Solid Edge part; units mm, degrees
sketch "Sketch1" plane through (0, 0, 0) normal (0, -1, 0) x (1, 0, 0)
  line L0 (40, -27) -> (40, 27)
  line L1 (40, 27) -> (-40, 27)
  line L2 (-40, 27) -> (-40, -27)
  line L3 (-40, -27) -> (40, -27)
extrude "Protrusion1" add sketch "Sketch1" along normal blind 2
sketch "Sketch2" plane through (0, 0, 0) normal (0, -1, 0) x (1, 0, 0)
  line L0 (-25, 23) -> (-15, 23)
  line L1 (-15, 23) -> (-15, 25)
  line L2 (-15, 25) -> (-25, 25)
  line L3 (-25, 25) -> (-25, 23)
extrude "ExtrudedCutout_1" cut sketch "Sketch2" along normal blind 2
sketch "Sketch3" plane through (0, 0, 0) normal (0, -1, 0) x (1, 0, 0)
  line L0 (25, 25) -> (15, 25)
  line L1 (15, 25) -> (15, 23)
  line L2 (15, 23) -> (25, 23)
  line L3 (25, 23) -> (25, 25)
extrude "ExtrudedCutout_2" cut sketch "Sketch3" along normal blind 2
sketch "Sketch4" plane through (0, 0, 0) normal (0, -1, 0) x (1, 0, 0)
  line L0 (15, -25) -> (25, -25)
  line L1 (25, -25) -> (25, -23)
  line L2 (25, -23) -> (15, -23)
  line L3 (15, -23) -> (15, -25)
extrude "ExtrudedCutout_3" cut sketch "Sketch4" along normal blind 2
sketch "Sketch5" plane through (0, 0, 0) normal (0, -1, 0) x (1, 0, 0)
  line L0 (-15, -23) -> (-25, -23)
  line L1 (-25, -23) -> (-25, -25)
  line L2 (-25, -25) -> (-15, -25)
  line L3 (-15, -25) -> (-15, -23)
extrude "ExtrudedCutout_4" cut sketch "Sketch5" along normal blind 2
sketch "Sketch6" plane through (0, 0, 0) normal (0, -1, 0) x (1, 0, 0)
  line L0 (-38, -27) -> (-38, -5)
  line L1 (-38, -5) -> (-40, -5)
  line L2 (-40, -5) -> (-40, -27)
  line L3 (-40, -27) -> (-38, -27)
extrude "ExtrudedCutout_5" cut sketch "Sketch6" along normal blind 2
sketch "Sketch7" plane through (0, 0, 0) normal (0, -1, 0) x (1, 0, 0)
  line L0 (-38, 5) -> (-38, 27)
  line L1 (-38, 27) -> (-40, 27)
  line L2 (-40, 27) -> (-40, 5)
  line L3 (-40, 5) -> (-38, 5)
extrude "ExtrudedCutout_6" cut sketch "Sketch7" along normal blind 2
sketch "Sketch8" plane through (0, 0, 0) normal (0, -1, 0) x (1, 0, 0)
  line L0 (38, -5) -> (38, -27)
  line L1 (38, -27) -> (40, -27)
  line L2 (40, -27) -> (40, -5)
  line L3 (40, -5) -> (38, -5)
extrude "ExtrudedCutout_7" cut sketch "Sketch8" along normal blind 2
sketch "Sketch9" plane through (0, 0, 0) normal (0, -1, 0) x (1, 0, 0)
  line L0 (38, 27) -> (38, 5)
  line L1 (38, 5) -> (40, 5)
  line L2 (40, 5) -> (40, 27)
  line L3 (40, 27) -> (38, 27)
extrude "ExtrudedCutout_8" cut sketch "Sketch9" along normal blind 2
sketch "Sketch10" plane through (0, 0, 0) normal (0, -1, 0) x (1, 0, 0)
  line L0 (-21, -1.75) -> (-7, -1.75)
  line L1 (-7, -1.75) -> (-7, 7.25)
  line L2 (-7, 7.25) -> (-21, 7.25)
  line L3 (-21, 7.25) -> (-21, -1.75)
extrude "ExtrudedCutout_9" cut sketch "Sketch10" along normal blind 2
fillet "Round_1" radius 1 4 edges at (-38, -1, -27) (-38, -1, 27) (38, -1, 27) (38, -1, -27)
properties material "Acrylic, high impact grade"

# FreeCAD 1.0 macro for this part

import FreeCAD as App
import Part
import Sketcher
Q = App.Units.Quantity


def edges_at(feature, points):
    """Names of the edges that pass closest to the given points."""
    edges = feature.Shape.Edges
    near = lambda p: min(range(len(edges)), key=lambda i: edges[i].distToShape(Part.Vertex(*p))[0])
    return sorted({f"Edge{near(p) + 1}" for p in points})

doc = App.newDocument("Part")
body = doc.addObject("PartDesign::Body", "Body")

# Sketch on XZ plane
sketch1 = body.newObject("Sketcher::SketchObject", "Sketch")
sketch1.AttachmentSupport = (doc.getObject("XZ_Plane"), [""])
sketch1.MapMode = "FlatFace"
sketch1.addGeometry(Part.LineSegment(App.Vector(-40, -27, 0), App.Vector(40, -27, 0)), False)
sketch1.addGeometry(Part.LineSegment(App.Vector(40, -27, 0), App.Vector(40, 27, 0)), False)
sketch1.addGeometry(Part.LineSegment(App.Vector(40, 27, 0), App.Vector(-40, 27, 0)), False)
sketch1.addGeometry(Part.LineSegment(App.Vector(-40, 27, 0), App.Vector(-40, -27, 0)), False)
sketch1.addConstraint(Sketcher.Constraint("Coincident", 0, 2, 1, 1))
sketch1.addConstraint(Sketcher.Constraint("Coincident", 1, 2, 2, 1))
sketch1.addConstraint(Sketcher.Constraint("Coincident", 2, 2, 3, 1))
sketch1.addConstraint(Sketcher.Constraint("Coincident", 3, 2, 0, 1))
sketch1.addConstraint(Sketcher.Constraint("Horizontal", 0))
sketch1.addConstraint(Sketcher.Constraint("Vertical", 1))
sketch1.addConstraint(Sketcher.Constraint("Horizontal", 2))
sketch1.addConstraint(Sketcher.Constraint("Vertical", 3))
sketch1.addConstraint(Sketcher.Constraint("Symmetric", 0, 2, 2, 2, -1, 1))
sketch1.addConstraint(Sketcher.Constraint("DistanceX", 0, 1, 0, 2, Q("80 mm")))
sketch1.addConstraint(Sketcher.Constraint("DistanceY", 1, 1, 1, 2, Q("54 mm")))
pad1 = body.newObject("PartDesign::Pad", "Pad")
pad1.Profile = sketch1
pad1.Length = 2

# Sketch on XZ plane
sketch2 = body.newObject("Sketcher::SketchObject", "Sketch001")
sketch2.AttachmentSupport = (doc.getObject("XZ_Plane"), [""])
sketch2.MapMode = "FlatFace"
sketch2.addGeometry(Part.LineSegment(App.Vector(-25, 25, 0), App.Vector(-25, 23, 0)), False)
sketch2.addGeometry(Part.LineSegment(App.Vector(-25, 23, 0), App.Vector(-15, 23, 0)), False)
sketch2.addGeometry(Part.LineSegment(App.Vector(-15, 23, 0), App.Vector(-15, 25, 0)), False)
sketch2.addGeometry(Part.LineSegment(App.Vector(-15, 25, 0), App.Vector(-25, 25, 0)), False)
sketch2.addConstraint(Sketcher.Constraint("Coincident", 0, 2, 1, 1))
sketch2.addConstraint(Sketcher.Constraint("Coincident", 1, 2, 2, 1))
sketch2.addConstraint(Sketcher.Constraint("Coincident", 2, 2, 3, 1))
sketch2.addConstraint(Sketcher.Constraint("Coincident", 3, 2, 0, 1))
sketch2.addConstraint(Sketcher.Constraint("Vertical", 0))
sketch2.addConstraint(Sketcher.Constraint("Horizontal", 1))
sketch2.addConstraint(Sketcher.Constraint("Vertical", 2))
sketch2.addConstraint(Sketcher.Constraint("Horizontal", 3))
sketch2.addConstraint(Sketcher.Constraint("DistanceX", 1, 1, 1, 2, Q("10 mm")))
sketch2.addConstraint(Sketcher.Constraint("DistanceY", 0, 2, 0, 1, Q("2 mm")))
sketch2.addConstraint(Sketcher.Constraint("DistanceX", 0, 2, -1, 1, Q("25 mm")))
sketch2.addConstraint(Sketcher.Constraint("DistanceY", -1, 1, 0, 2, Q("23 mm")))
pocket1 = body.newObject("PartDesign::Pocket", "Pocket")
pocket1.Profile = sketch2
pocket1.Length = 2
pocket1.Reversed = True

# Sketch on XZ plane
sketch3 = body.newObject("Sketcher::SketchObject", "Sketch002")
sketch3.AttachmentSupport = (doc.getObject("XZ_Plane"), [""])
sketch3.MapMode = "FlatFace"
sketch3.addGeometry(Part.LineSegment(App.Vector(25, 23, 0), App.Vector(25, 25, 0)), False)
sketch3.addGeometry(Part.LineSegment(App.Vector(25, 25, 0), App.Vector(15, 25, 0)), False)
sketch3.addGeometry(Part.LineSegment(App.Vector(15, 25, 0), App.Vector(15, 23, 0)), False)
sketch3.addGeometry(Part.LineSegment(App.Vector(15, 23, 0), App.Vector(25, 23, 0)), False)
sketch3.addConstraint(Sketcher.Constraint("Coincident", 0, 2, 1, 1))
sketch3.addConstraint(Sketcher.Constraint("Coincident", 1, 2, 2, 1))
sketch3.addConstraint(Sketcher.Constraint("Coincident", 2, 2, 3, 1))
sketch3.addConstraint(Sketcher.Constraint("Coincident", 3, 2, 0, 1))
sketch3.addConstraint(Sketcher.Constraint("Vertical", 0))
sketch3.addConstraint(Sketcher.Constraint("Horizontal", 1))
sketch3.addConstraint(Sketcher.Constraint("Vertical", 2))
sketch3.addConstraint(Sketcher.Constraint("Horizontal", 3))
sketch3.addConstraint(Sketcher.Constraint("DistanceX", 1, 2, 1, 1, Q("10 mm")))
sketch3.addConstraint(Sketcher.Constraint("DistanceY", 0, 1, 0, 2, Q("2 mm")))
sketch3.addConstraint(Sketcher.Constraint("DistanceX", -1, 1, 0, 2, Q("25 mm")))
sketch3.addConstraint(Sketcher.Constraint("DistanceY", -1, 1, 0, 2, Q("25 mm")))
pocket2 = body.newObject("PartDesign::Pocket", "Pocket001")
pocket2.Profile = sketch3
pocket2.Length = 2
pocket2.Reversed = True

# Sketch on XZ plane
sketch4 = body.newObject("Sketcher::SketchObject", "Sketch003")
sketch4.AttachmentSupport = (doc.getObject("XZ_Plane"), [""])
sketch4.MapMode = "FlatFace"
sketch4.addGeometry(Part.LineSegment(App.Vector(15, -23, 0), App.Vector(15, -25, 0)), False)
sketch4.addGeometry(Part.LineSegment(App.Vector(15, -25, 0), App.Vector(25, -25, 0)), False)
sketch4.addGeometry(Part.LineSegment(App.Vector(25, -25, 0), App.Vector(25, -23, 0)), False)
sketch4.addGeometry(Part.LineSegment(App.Vector(25, -23, 0), App.Vector(15, -23, 0)), False)
sketch4.addConstraint(Sketcher.Constraint("Coincident", 0, 2, 1, 1))
sketch4.addConstraint(Sketcher.Constraint("Coincident", 1, 2, 2, 1))
sketch4.addConstraint(Sketcher.Constraint("Coincident", 2, 2, 3, 1))
sketch4.addConstraint(Sketcher.Constraint("Coincident", 3, 2, 0, 1))
sketch4.addConstraint(Sketcher.Constraint("Vertical", 0))
sketch4.addConstraint(Sketcher.Constraint("Horizontal", 1))
sketch4.addConstraint(Sketcher.Constraint("Vertical", 2))
sketch4.addConstraint(Sketcher.Constraint("Horizontal", 3))
sketch4.addConstraint(Sketcher.Constraint("DistanceX", 1, 1, 1, 2, Q("10 mm")))
sketch4.addConstraint(Sketcher.Constraint("DistanceY", 0, 2, 0, 1, Q("2 mm")))
sketch4.addConstraint(Sketcher.Constraint("DistanceX", -1, 1, 0, 2, Q("15 mm")))
sketch4.addConstraint(Sketcher.Constraint("DistanceY", 0, 2, -1, 1, Q("25 mm")))
pocket3 = body.newObject("PartDesign::Pocket", "Pocket002")
pocket3.Profile = sketch4
pocket3.Length = 2
pocket3.Reversed = True

# Sketch on XZ plane
sketch5 = body.newObject("Sketcher::SketchObject", "Sketch004")
sketch5.AttachmentSupport = (doc.getObject("XZ_Plane"), [""])
sketch5.MapMode = "FlatFace"
sketch5.addGeometry(Part.LineSegment(App.Vector(-15, -25, 0), App.Vector(-15, -23, 0)), False)
sketch5.addGeometry(Part.LineSegment(App.Vector(-15, -23, 0), App.Vector(-25, -23, 0)), False)
sketch5.addGeometry(Part.LineSegment(App.Vector(-25, -23, 0), App.Vector(-25, -25, 0)), False)
sketch5.addGeometry(Part.LineSegment(App.Vector(-25, -25, 0), App.Vector(-15, -25, 0)), False)
sketch5.addConstraint(Sketcher.Constraint("Coincident", 0, 2, 1, 1))
sketch5.addConstraint(Sketcher.Constraint("Coincident", 1, 2, 2, 1))
sketch5.addConstraint(Sketcher.Constraint("Coincident", 2, 2, 3, 1))
sketch5.addConstraint(Sketcher.Constraint("Coincident", 3, 2, 0, 1))
sketch5.addConstraint(Sketcher.Constraint("Vertical", 0))
sketch5.addConstraint(Sketcher.Constraint("Horizontal", 1))
sketch5.addConstraint(Sketcher.Constraint("Vertical", 2))
sketch5.addConstraint(Sketcher.Constraint("Horizontal", 3))
sketch5.addConstraint(Sketcher.Constraint("DistanceX", 1, 2, 1, 1, Q("10 mm")))
sketch5.addConstraint(Sketcher.Constraint("DistanceY", 0, 1, 0, 2, Q("2 mm")))
sketch5.addConstraint(Sketcher.Constraint("DistanceX", 0, 2, -1, 1, Q("15 mm")))
sketch5.addConstraint(Sketcher.Constraint("DistanceY", 0, 2, -1, 1, Q("23 mm")))
pocket4 = body.newObject("PartDesign::Pocket", "Pocket003")
pocket4.Profile = sketch5
pocket4.Length = 2
pocket4.Reversed = True

# Sketch on XZ plane
sketch6 = body.newObject("Sketcher::SketchObject", "Sketch005")
sketch6.AttachmentSupport = (doc.getObject("XZ_Plane"), [""])
sketch6.MapMode = "FlatFace"
sketch6.addGeometry(Part.LineSegment(App.Vector(-40, -27, 0), App.Vector(-38, -27, 0)), False)
sketch6.addGeometry(Part.LineSegment(App.Vector(-38, -27, 0), App.Vector(-38, -5, 0)), False)
sketch6.addGeometry(Part.LineSegment(App.Vector(-38, -5, 0), App.Vector(-40, -5, 0)), False)
sketch6.addGeometry(Part.LineSegment(App.Vector(-40, -5, 0), App.Vector(-40, -27, 0)), False)
sketch6.addConstraint(Sketcher.Constraint("Coincident", 0, 2, 1, 1))
sketch6.addConstraint(Sketcher.Constraint("Coincident", 1, 2, 2, 1))
sketch6.addConstraint(Sketcher.Constraint("Coincident", 2, 2, 3, 1))
sketch6.addConstraint(Sketcher.Constraint("Coincident", 3, 2, 0, 1))
sketch6.addConstraint(Sketcher.Constraint("Horizontal", 0))
sketch6.addConstraint(Sketcher.Constraint("Vertical", 1))
sketch6.addConstraint(Sketcher.Constraint("Horizontal", 2))
sketch6.addConstraint(Sketcher.Constraint("Vertical", 3))
sketch6.addConstraint(Sketcher.Constraint("DistanceX", 0, 1, 0, 2, Q("2 mm")))
sketch6.addConstraint(Sketcher.Constraint("DistanceY", 1, 1, 1, 2, Q("22 mm")))
sketch6.addConstraint(Sketcher.Constraint("DistanceX", 0, 2, -1, 1, Q("38 mm")))
sketch6.addConstraint(Sketcher.Constraint("DistanceY", 0, 2, -1, 1, Q("27 mm")))
pocket5 = body.newObject("PartDesign::Pocket", "Pocket004")
pocket5.Profile = sketch6
pocket5.Length = 2
pocket5.Reversed = True

# Sketch on XZ plane
sketch7 = body.newObject("Sketcher::SketchObject", "Sketch006")
sketch7.AttachmentSupport = (doc.getObject("XZ_Plane"), [""])
sketch7.MapMode = "FlatFace"
sketch7.addGeometry(Part.LineSegment(App.Vector(-40, 5, 0), App.Vector(-38, 5, 0)), False)
sketch7.addGeometry(Part.LineSegment(App.Vector(-38, 5, 0), App.Vector(-38, 27, 0)), False)
sketch7.addGeometry(Part.LineSegment(App.Vector(-38, 27, 0), App.Vector(-40, 27, 0)), False)
sketch7.addGeometry(Part.LineSegment(App.Vector(-40, 27, 0), App.Vector(-40, 5, 0)), False)
sketch7.addConstraint(Sketcher.Constraint("Coincident", 0, 2, 1, 1))
sketch7.addConstraint(Sketcher.Constraint("Coincident", 1, 2, 2, 1))
sketch7.addConstraint(Sketcher.Constraint("Coincident", 2, 2, 3, 1))
sketch7.addConstraint(Sketcher.Constraint("Coincident", 3, 2, 0, 1))
sketch7.addConstraint(Sketcher.Constraint("Horizontal", 0))
sketch7.addConstraint(Sketcher.Constraint("Vertical", 1))
sketch7.addConstraint(Sketcher.Constraint("Horizontal", 2))
sketch7.addConstraint(Sketcher.Constraint("Vertical", 3))
sketch7.addConstraint(Sketcher.Constraint("DistanceX", 0, 1, 0, 2, Q("2 mm")))
sketch7.addConstraint(Sketcher.Constraint("DistanceY", 1, 1, 1, 2, Q("22 mm")))
sketch7.addConstraint(Sketcher.Constraint("DistanceX", 0, 2, -1, 1, Q("38 mm")))
sketch7.addConstraint(Sketcher.Constraint("DistanceY", -1, 1, 0, 2, Q("5 mm")))
pocket6 = body.newObject("PartDesign::Pocket", "Pocket005")
pocket6.Profile = sketch7
pocket6.Length = 2
pocket6.Reversed = True

# Sketch on XZ plane
sketch8 = body.newObject("Sketcher::SketchObject", "Sketch007")
sketch8.AttachmentSupport = (doc.getObject("XZ_Plane"), [""])
sketch8.MapMode = "FlatFace"
sketch8.addGeometry(Part.LineSegment(App.Vector(40, -5, 0), App.Vector(38, -5, 0)), False)
sketch8.addGeometry(Part.LineSegment(App.Vector(38, -5, 0), App.Vector(38, -27, 0)), False)
sketch8.addGeometry(Part.LineSegment(App.Vector(38, -27, 0), App.Vector(40, -27, 0)), False)
sketch8.addGeometry(Part.LineSegment(App.Vector(40, -27, 0), App.Vector(40, -5, 0)), False)
sketch8.addConstraint(Sketcher.Constraint("Coincident", 0, 2, 1, 1))
sketch8.addConstraint(Sketcher.Constraint("Coincident", 1, 2, 2, 1))
sketch8.addConstraint(Sketcher.Constraint("Coincident", 2, 2, 3, 1))
sketch8.addConstraint(Sketcher.Constraint("Coincident", 3, 2, 0, 1))
sketch8.addConstraint(Sketcher.Constraint("Horizontal", 0))
sketch8.addConstraint(Sketcher.Constraint("Vertical", 1))
sketch8.addConstraint(Sketcher.Constraint("Horizontal", 2))
sketch8.addConstraint(Sketcher.Constraint("Vertical", 3))
sketch8.addConstraint(Sketcher.Constraint("DistanceX", 0, 2, 0, 1, Q("2 mm")))
sketch8.addConstraint(Sketcher.Constraint("DistanceY", 1, 2, 1, 1, Q("22 mm")))
sketch8.addConstraint(Sketcher.Constraint("DistanceX", -1, 1, 0, 2, Q("38 mm")))
sketch8.addConstraint(Sketcher.Constraint("DistanceY", 0, 2, -1, 1, Q("5 mm")))
pocket7 = body.newObject("PartDesign::Pocket", "Pocket006")
pocket7.Profile = sketch8
pocket7.Length = 2
pocket7.Reversed = True

# Sketch on XZ plane
sketch9 = body.newObject("Sketcher::SketchObject", "Sketch008")
sketch9.AttachmentSupport = (doc.getObject("XZ_Plane"), [""])
sketch9.MapMode = "FlatFace"
sketch9.addGeometry(Part.LineSegment(App.Vector(40, 27, 0), App.Vector(38, 27, 0)), False)
sketch9.addGeometry(Part.LineSegment(App.Vector(38, 27, 0), App.Vector(38, 5, 0)), False)
sketch9.addGeometry(Part.LineSegment(App.Vector(38, 5, 0), App.Vector(40, 5, 0)), False)
sketch9.addGeometry(Part.LineSegment(App.Vector(40, 5, 0), App.Vector(40, 27, 0)), False)
sketch9.addConstraint(Sketcher.Constraint("Coincident", 0, 2, 1, 1))
sketch9.addConstraint(Sketcher.Constraint("Coincident", 1, 2, 2, 1))
sketch9.addConstraint(Sketcher.Constraint("Coincident", 2, 2, 3, 1))
sketch9.addConstraint(Sketcher.Constraint("Coincident", 3, 2, 0, 1))
sketch9.addConstraint(Sketcher.Constraint("Horizontal", 0))
sketch9.addConstraint(Sketcher.Constraint("Vertical", 1))
sketch9.addConstraint(Sketcher.Constraint("Horizontal", 2))
sketch9.addConstraint(Sketcher.Constraint("Vertical", 3))
sketch9.addConstraint(Sketcher.Constraint("DistanceX", 0, 2, 0, 1, Q("2 mm")))
sketch9.addConstraint(Sketcher.Constraint("DistanceY", 1, 2, 1, 1, Q("22 mm")))
sketch9.addConstraint(Sketcher.Constraint("DistanceX", -1, 1, 0, 2, Q("38 mm")))
sketch9.addConstraint(Sketcher.Constraint("DistanceY", -1, 1, 0, 2, Q("27 mm")))
pocket8 = body.newObject("PartDesign::Pocket", "Pocket007")
pocket8.Profile = sketch9
pocket8.Length = 2
pocket8.Reversed = True

# Sketch on XZ plane
sketch10 = body.newObject("Sketcher::SketchObject", "Sketch009")
sketch10.AttachmentSupport = (doc.getObject("XZ_Plane"), [""])
sketch10.MapMode = "FlatFace"
sketch10.addGeometry(Part.LineSegment(App.Vector(-21, 7, 0), App.Vector(-21, -2, 0)), False)
sketch10.addGeometry(Part.LineSegment(App.Vector(-21, -2, 0), App.Vector(-7, -2, 0)), False)
sketch10.addGeometry(Part.LineSegment(App.Vector(-7, -2, 0), App.Vector(-7, 7, 0)), False)
sketch10.addGeometry(Part.LineSegment(App.Vector(-7, 7, 0), App.Vector(-21, 7, 0)), False)
sketch10.addConstraint(Sketcher.Constraint("Coincident", 0, 2, 1, 1))
sketch10.addConstraint(Sketcher.Constraint("Coincident", 1, 2, 2, 1))
sketch10.addConstraint(Sketcher.Constraint("Coincident", 2, 2, 3, 1))
sketch10.addConstraint(Sketcher.Constraint("Coincident", 3, 2, 0, 1))
sketch10.addConstraint(Sketcher.Constraint("Vertical", 0))
sketch10.addConstraint(Sketcher.Constraint("Horizontal", 1))
sketch10.addConstraint(Sketcher.Constraint("Vertical", 2))
sketch10.addConstraint(Sketcher.Constraint("Horizontal", 3))
sketch10.addConstraint(Sketcher.Constraint("DistanceX", 1, 1, 1, 2, Q("14 mm")))
sketch10.addConstraint(Sketcher.Constraint("DistanceY", 0, 2, 0, 1, Q("9 mm")))
sketch10.addConstraint(Sketcher.Constraint("DistanceX", 0, 2, -1, 1, Q("21 mm")))
sketch10.addConstraint(Sketcher.Constraint("DistanceY", 0, 2, -1, 1, Q("1.75 mm")))
pocket9 = body.newObject("PartDesign::Pocket", "Pocket008")
pocket9.Profile = sketch10
pocket9.Length = 2
pocket9.Reversed = True
doc.recompute()

fillet = body.newObject("PartDesign::Fillet", "Fillet")
fillet.Base = (pocket9, edges_at(pocket9, [
    (-38, -1, -27),
    (-38, -1, 27),
    (38, -1, 27),
    (38, -1, -27),
]))
fillet.Radius = 1

doc.recompute()
